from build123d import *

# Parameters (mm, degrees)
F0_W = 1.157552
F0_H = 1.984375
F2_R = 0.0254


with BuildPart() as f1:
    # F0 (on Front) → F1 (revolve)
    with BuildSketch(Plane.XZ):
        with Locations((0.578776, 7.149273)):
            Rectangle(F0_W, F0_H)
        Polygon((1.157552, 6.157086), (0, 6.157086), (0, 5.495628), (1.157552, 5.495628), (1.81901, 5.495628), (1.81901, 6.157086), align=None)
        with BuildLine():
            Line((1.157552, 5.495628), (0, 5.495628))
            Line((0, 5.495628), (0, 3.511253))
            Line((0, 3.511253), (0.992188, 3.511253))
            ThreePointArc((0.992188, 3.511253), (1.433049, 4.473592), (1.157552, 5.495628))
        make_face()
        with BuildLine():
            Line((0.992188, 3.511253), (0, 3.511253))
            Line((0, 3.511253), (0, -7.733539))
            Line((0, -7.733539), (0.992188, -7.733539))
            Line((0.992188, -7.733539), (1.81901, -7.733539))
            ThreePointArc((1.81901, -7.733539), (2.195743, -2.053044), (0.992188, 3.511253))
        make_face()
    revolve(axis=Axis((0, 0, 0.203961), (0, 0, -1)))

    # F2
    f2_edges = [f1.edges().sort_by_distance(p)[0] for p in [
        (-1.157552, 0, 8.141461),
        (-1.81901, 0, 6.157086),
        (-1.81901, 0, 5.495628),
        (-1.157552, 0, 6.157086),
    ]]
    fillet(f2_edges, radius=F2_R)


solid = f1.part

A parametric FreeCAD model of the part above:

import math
import FreeCAD as App
import Part
import Sketcher
Q = App.Units.Quantity


def edges_at(feature, points):
    """Names of the edges that pass closest to the given points."""
    edges = feature.Shape.Edges
    near = lambda p: min(range(len(edges)), key=lambda i: edges[i].distToShape(Part.Vertex(*p))[0])
    return sorted({f"Edge{near(p) + 1}" for p in points})

doc = App.newDocument("Part")
params = doc.addObject("Spreadsheet::Sheet", "Params")
for row, (alias, value) in enumerate([
    ("sketch1_height", "0.078125 in"),
    ("sketch1_height2", "0.625 in"),
    ("revolution_angle", "360 deg"),
    ("fillet_radius", "0.001 in"),
], start=1):
    params.set(f"A{row}", alias)
    params.set(f"B{row}", "=" + value)
    params.setAlias(f"B{row}", alias)

body = doc.addObject("PartDesign::Body", "Body")

# Sketch on XZ plane
sketch1 = body.newObject("Sketcher::SketchObject", "Sketch")
sketch1.AttachmentSupport = (doc.getObject("XZ_Plane"), [""])
sketch1.MapMode = "FlatFace"
sketch1.addGeometry([
    Part.LineSegment(App.Vector(1.2, 5.5, 0), App.Vector(1.8, 5.5, 0)),  # 0
    Part.LineSegment(App.Vector(1.8, 5.5, 0), App.Vector(1.8, 6.2, 0)),  # 1
    Part.LineSegment(App.Vector(1.8, 6.2, 0), App.Vector(1.2, 6.2, 0)),  # 2
    Part.LineSegment(App.Vector(1.2, 6.2, 0), App.Vector(1.2, 8.1, 0)),  # 3
    Part.LineSegment(App.Vector(1.2, 8.1, 0), App.Vector(0, 8.1, 0)),  # 4
    Part.LineSegment(App.Vector(0, 8.1, 0), App.Vector(0, -7.7, 0)),  # 5
    Part.LineSegment(App.Vector(0, -7.7, 0), App.Vector(1.8, -7.7, 0)),  # 6
    Part.ArcOfCircle(Part.Circle(App.Vector(-18.2, -3.6, 0), App.Vector(0, 0, 1), 20.5), math.radians(-12), math.radians(20)),  # 7
    Part.ArcOfCircle(Part.Circle(App.Vector(-0.1, 4.6, 0), App.Vector(0, 0, 1), 1.6), math.radians(-44), math.radians(35)),  # 8
], False)
sketch1.addConstraint([
    Sketcher.Constraint("Coincident", 0, 2, 1, 1),
    Sketcher.Constraint("Coincident", 1, 2, 2, 1),
    Sketcher.Constraint("Coincident", 2, 2, 3, 1),
    Sketcher.Constraint("Coincident", 3, 2, 4, 1),
    Sketcher.Constraint("Coincident", 4, 2, 5, 1),
    Sketcher.Constraint("Coincident", 5, 2, 6, 1),
    Sketcher.Constraint("Coincident", 6, 2, 7, 1),
    Sketcher.Constraint("Coincident", 7, 2, 8, 1),
    Sketcher.Constraint("Coincident", 8, 2, 0, 1),
    Sketcher.Constraint("Horizontal", 0),
    Sketcher.Constraint("Vertical", 1),
    Sketcher.Constraint("Horizontal", 2),
    Sketcher.Constraint("Vertical", 3),
    Sketcher.Constraint("Horizontal", 4),
    Sketcher.Constraint("Vertical", 5),
    Sketcher.Constraint("Horizontal", 6),
    Sketcher.Constraint("PointOnObject", 4, 2, -2),
    Sketcher.Constraint("Vertical", 1, 2, 6, 2),
    Sketcher.Constraint("Vertical", 3, 2, 8, 2),
    Sketcher.Constraint("Equal", 2, 1),
    Sketcher.Constraint("DistanceY", 3, 1, 3, 2, Q("0.078125 in")),
    Sketcher.Constraint("DistanceY", 5, 2, 5, 1, Q("0.625 in")),
    Sketcher.Constraint("Radius", 7, 20.453669),
    Sketcher.Constraint("DistanceY", 7, 2, 0, 2, Q("0.078125 in")),
    Sketcher.Constraint("Radius", 8, 1.558697),
    Sketcher.Constraint("DistanceX", 0, 1, 0, 2, 0.661458),
    Sketcher.Constraint("DistanceX", 4, 2, 4, 1, 1.157552),
    Sketcher.Constraint("DistanceY", 7, 3, 3, 2, 11.6944),
    Sketcher.Constraint("DistanceY", 7, 3, -1, 1, 3.55294),
])
sketch1.setExpression("Constraints[20]", "Params.sketch1_height")
sketch1.setExpression("Constraints[21]", "Params.sketch1_height2")
revolution = body.newObject("PartDesign::Revolution", "Revolution")
revolution.Profile = sketch1
revolution.ReferenceAxis = (sketch1, ["V_Axis"])
revolution.setExpression("Angle", "Params.revolution_angle")
doc.recompute()

fillet = body.newObject("PartDesign::Fillet", "Fillet")
fillet.Base = (revolution, edges_at(revolution, [
    (-1.158, 0, 8.141),
    (-1.819, 0, 6.157),
    (-1.819, 0, 5.496),
    (-1.158, 0, 6.157),
]))
fillet.setExpression("Radius", "Params.fillet_radius")

doc.recompute()
